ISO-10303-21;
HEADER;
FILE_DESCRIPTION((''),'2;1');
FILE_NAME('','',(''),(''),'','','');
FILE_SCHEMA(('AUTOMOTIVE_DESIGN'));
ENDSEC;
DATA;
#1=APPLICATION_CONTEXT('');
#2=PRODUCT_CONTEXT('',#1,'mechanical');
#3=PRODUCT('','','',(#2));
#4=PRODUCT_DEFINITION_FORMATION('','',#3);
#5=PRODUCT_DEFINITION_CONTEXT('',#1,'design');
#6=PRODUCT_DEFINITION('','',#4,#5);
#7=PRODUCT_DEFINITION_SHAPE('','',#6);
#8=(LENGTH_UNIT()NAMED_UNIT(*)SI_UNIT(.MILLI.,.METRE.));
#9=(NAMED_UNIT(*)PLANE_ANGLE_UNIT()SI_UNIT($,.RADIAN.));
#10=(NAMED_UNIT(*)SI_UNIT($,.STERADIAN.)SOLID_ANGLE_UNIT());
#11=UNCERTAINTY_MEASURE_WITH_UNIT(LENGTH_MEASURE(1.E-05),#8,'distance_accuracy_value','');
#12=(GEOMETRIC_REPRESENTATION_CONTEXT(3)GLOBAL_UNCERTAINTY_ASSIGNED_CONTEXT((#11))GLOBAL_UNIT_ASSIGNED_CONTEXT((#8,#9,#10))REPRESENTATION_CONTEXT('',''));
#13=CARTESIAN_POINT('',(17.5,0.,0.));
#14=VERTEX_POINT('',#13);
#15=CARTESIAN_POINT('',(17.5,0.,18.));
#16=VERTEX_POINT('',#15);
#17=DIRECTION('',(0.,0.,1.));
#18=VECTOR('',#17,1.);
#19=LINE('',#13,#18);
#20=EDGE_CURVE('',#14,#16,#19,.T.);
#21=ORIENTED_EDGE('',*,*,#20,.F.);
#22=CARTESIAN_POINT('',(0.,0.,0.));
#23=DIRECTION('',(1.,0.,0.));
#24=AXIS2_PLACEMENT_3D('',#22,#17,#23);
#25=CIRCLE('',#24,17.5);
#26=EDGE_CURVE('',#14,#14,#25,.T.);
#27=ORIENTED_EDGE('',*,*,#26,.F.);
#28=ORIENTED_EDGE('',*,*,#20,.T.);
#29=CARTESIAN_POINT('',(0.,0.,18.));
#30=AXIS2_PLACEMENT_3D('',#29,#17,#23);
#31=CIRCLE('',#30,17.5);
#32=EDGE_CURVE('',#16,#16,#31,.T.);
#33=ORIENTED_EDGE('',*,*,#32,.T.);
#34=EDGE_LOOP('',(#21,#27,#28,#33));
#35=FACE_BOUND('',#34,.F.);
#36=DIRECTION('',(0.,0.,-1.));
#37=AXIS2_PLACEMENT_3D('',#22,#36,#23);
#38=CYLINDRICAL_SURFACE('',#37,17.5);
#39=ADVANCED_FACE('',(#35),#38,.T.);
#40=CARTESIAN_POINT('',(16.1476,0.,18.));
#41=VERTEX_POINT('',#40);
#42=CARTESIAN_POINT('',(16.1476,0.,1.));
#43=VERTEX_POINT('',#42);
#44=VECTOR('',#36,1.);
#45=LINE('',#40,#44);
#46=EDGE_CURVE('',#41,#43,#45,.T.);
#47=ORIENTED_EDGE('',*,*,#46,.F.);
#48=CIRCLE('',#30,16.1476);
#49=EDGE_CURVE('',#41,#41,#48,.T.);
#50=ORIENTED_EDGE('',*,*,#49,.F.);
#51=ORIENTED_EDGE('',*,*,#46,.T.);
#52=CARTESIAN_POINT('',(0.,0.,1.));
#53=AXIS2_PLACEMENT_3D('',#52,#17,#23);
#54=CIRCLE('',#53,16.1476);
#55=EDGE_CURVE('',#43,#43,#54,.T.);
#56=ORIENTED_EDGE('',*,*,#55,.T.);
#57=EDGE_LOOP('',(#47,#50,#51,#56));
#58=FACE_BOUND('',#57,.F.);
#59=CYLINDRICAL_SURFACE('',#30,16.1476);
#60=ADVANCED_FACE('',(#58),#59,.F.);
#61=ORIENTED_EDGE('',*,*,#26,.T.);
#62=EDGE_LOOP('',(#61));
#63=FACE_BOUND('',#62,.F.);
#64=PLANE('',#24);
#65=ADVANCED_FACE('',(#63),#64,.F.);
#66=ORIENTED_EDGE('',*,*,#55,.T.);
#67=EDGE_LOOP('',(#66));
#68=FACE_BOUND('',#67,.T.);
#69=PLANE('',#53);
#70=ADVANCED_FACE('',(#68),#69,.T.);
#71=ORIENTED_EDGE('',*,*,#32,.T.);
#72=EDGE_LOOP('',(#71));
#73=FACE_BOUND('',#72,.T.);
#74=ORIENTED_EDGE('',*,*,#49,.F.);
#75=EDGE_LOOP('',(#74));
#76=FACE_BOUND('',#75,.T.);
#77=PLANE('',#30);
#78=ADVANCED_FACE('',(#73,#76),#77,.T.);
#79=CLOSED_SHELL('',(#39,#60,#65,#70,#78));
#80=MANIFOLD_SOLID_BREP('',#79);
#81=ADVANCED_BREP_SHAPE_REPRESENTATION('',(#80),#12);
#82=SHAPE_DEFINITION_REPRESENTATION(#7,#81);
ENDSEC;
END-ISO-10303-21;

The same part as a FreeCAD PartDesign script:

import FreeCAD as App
import Part
import Sketcher

V = App.Vector

doc = App.newDocument("Part")
body = doc.addObject("PartDesign::Body", "Body")

sketch1 = doc.addObject("Sketcher::SketchObject", "Sketch")
body.addObject(sketch1)
sketch1.AttachmentSupport = (doc.XY_Plane, [""])
sketch1.MapMode = "FlatFace"
sketch1.addGeometry(Part.Circle(V(0, 0, 0), V(0, 0, 1), 18), False)
sketch1.addConstraint(Sketcher.Constraint("Coincident", 0, 3, -1, 1))
sketch1.addConstraint(Sketcher.Constraint("Diameter", 0, 35.0))
pad1 = doc.addObject("PartDesign::Pad", "Pad")
body.addObject(pad1)
pad1.Profile = sketch1
pad1.Length = 18

sketch2 = doc.addObject("Sketcher::SketchObject", "Sketch001")
body.addObject(sketch2)
sketch2.AttachmentSupport = (doc.XY_Plane, [""])
sketch2.MapMode = "FlatFace"
sketch2.AttachmentOffset = App.Placement(V(0, 0, 18), App.Rotation())
sketch2.addGeometry(Part.Circle(V(0, 0, 0), V(0, 0, 1), 16), False)
sketch2.addConstraint(Sketcher.Constraint("Coincident", 0, 3, -1, 1))
sketch2.addConstraint(Sketcher.Constraint("Diameter", 0, 32.2952))
pocket1 = doc.addObject("PartDesign::Pocket", "Pocket")
body.addObject(pocket1)
pocket1.Profile = sketch2
pocket1.Length = 17

doc.recompute()
